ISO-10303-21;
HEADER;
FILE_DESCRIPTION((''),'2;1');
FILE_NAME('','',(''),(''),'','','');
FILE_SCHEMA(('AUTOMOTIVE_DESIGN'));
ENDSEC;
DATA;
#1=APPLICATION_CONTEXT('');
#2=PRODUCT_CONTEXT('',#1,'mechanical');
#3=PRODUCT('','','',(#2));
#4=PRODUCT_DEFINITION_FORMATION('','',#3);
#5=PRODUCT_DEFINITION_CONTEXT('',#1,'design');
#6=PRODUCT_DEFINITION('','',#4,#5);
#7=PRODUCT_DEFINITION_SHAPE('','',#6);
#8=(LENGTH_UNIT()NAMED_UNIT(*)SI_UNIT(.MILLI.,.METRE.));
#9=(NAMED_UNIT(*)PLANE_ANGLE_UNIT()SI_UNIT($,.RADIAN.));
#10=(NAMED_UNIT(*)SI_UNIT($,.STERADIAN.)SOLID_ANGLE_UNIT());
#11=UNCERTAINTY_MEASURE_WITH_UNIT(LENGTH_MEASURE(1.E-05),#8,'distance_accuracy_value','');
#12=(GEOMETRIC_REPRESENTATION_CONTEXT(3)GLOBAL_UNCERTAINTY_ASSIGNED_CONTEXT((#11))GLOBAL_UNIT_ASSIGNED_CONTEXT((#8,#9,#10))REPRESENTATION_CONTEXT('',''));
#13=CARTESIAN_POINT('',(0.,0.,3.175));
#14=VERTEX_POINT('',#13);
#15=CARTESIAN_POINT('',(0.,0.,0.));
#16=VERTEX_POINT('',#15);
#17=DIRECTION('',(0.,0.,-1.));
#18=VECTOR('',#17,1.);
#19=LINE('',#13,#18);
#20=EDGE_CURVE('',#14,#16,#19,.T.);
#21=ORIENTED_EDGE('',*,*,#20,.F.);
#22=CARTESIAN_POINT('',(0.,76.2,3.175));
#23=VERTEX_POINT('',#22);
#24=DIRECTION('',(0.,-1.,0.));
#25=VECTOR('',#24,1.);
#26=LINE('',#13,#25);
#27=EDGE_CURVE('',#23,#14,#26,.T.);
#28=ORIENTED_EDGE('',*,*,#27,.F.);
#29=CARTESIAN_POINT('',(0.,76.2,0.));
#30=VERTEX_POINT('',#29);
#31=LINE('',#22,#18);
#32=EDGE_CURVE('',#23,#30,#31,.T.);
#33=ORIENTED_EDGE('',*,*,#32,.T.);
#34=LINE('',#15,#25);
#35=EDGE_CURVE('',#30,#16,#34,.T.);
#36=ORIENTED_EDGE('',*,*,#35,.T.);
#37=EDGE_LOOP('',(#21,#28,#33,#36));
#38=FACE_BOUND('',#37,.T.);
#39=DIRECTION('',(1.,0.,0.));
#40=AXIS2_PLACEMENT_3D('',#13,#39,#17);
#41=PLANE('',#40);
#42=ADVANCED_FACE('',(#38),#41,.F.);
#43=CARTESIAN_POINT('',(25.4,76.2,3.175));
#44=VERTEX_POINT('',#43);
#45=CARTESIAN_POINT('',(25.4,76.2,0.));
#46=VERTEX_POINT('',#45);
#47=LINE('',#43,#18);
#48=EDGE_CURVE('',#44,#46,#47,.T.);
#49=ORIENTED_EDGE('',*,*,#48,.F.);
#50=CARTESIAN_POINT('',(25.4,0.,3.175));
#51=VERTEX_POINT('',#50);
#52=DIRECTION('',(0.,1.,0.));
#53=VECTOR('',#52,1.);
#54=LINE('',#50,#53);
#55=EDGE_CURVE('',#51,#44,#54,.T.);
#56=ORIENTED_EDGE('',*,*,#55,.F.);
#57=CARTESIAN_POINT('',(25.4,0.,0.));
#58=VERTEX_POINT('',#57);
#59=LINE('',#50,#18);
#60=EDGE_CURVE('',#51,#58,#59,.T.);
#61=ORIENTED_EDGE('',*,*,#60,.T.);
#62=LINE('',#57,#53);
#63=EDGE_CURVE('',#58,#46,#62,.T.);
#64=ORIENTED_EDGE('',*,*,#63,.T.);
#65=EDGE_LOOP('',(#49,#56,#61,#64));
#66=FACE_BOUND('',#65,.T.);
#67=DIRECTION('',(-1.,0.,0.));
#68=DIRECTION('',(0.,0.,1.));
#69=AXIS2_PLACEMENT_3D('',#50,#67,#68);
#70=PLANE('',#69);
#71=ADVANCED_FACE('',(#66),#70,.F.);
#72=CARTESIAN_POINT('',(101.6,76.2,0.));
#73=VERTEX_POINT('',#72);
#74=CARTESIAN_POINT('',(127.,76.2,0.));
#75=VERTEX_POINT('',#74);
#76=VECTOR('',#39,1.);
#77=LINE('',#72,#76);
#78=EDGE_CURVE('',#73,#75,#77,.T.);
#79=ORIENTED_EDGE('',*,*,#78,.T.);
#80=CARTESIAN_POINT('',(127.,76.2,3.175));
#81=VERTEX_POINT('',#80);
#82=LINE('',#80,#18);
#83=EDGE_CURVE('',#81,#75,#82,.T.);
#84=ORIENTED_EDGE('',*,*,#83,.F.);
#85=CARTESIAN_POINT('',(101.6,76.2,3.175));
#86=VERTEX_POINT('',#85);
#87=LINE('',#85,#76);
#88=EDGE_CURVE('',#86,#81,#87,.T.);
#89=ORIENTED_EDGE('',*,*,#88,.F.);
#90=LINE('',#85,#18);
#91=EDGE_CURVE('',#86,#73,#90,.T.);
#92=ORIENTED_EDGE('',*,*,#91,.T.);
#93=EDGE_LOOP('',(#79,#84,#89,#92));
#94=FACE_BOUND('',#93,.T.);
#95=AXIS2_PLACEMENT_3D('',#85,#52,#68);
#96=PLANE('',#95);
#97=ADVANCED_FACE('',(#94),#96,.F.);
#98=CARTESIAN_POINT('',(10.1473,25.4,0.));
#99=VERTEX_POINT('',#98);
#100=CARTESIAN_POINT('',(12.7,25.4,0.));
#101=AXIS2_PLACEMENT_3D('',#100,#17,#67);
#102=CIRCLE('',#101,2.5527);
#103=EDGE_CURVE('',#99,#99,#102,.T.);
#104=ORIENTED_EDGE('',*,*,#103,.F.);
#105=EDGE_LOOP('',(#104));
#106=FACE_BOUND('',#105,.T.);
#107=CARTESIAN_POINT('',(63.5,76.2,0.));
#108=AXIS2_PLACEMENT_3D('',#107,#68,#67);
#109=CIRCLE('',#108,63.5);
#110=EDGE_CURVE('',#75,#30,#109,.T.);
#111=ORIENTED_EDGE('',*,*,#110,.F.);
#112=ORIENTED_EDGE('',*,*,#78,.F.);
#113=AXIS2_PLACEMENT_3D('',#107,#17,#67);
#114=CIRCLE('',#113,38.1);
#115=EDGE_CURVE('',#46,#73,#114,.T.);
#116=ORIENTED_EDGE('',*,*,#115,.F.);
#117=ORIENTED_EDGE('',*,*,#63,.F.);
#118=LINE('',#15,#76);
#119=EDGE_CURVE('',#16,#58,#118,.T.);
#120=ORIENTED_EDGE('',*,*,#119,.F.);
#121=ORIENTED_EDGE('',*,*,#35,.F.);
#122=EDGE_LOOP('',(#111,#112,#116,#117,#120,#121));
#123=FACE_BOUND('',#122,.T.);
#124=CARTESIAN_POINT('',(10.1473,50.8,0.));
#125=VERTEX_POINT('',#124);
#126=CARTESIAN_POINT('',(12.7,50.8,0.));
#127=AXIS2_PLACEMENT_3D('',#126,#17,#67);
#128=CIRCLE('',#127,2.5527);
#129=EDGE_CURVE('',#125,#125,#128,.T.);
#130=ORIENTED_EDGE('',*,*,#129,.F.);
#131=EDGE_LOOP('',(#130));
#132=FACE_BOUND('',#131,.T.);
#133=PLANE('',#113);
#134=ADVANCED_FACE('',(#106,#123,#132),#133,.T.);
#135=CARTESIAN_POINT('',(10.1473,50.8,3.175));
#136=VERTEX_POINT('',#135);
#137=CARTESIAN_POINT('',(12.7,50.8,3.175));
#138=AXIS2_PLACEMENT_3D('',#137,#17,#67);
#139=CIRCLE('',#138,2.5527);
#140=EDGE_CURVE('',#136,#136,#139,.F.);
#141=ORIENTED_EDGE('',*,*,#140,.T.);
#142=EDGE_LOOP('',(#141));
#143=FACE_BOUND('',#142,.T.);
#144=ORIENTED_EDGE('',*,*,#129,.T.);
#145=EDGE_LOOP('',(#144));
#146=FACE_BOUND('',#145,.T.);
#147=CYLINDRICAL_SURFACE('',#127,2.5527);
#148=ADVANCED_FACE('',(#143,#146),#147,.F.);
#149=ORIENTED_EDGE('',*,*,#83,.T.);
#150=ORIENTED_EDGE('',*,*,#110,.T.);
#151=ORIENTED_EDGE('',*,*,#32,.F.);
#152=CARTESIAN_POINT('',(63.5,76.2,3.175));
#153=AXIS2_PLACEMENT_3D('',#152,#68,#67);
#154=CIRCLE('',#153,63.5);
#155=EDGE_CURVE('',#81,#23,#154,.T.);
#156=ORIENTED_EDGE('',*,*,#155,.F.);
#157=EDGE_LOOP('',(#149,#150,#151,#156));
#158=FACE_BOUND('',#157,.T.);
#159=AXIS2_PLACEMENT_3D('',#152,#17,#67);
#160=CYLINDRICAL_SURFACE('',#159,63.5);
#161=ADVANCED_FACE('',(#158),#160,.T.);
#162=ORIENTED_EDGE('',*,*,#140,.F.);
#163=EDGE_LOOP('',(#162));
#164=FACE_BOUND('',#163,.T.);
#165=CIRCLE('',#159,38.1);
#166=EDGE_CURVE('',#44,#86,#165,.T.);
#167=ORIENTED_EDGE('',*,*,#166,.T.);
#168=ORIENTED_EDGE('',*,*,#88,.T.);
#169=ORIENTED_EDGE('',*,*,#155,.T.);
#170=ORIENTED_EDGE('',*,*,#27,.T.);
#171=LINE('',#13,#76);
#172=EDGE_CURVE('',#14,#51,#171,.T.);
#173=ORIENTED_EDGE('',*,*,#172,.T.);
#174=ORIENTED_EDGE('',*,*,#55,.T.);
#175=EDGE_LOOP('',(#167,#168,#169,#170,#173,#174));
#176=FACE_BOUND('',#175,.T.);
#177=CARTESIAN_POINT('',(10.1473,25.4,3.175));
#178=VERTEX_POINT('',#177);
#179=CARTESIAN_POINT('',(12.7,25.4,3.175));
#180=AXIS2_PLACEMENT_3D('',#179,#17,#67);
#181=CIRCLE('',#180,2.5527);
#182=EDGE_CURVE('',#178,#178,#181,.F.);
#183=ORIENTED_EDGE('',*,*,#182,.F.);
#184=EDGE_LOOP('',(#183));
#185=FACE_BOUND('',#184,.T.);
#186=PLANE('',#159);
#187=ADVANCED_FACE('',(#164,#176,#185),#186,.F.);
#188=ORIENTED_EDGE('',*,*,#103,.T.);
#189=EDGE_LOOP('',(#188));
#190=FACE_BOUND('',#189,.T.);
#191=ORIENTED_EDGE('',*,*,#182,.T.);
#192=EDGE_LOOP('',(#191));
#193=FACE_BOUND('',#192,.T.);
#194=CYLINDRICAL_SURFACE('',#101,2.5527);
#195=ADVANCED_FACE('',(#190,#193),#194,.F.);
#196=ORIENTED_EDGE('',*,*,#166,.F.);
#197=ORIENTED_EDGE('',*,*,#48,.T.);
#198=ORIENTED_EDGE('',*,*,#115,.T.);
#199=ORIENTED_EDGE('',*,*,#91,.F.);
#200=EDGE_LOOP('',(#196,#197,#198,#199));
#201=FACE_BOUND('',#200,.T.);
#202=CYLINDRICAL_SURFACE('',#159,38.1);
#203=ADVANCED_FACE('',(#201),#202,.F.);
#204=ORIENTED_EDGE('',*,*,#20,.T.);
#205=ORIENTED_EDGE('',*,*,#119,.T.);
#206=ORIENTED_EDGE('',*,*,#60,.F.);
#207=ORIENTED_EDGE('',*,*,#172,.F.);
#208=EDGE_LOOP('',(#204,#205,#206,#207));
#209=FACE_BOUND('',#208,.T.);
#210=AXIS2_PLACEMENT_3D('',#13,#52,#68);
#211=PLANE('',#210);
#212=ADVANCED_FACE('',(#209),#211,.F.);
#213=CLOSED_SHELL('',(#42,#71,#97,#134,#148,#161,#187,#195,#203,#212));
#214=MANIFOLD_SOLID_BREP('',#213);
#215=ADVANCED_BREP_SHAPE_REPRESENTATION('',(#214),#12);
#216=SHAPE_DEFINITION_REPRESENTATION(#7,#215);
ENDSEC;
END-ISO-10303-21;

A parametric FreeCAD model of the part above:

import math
import FreeCAD as App
import Part
import Sketcher

V = App.Vector
Q = App.Units.Quantity

doc = App.newDocument("Part")
body = doc.addObject("PartDesign::Body", "Body")

# Sketch on XY plane
sketch1 = doc.addObject("Sketcher::SketchObject", "Sketch")
body.addObject(sketch1)
sketch1.AttachmentSupport = (doc.XY_Plane, [""])
sketch1.MapMode = "FlatFace"
sketch1.addGeometry(Part.LineSegment(V(0, 0, 0), V(25, 0, 0)), False)
sketch1.addGeometry(Part.LineSegment(V(25, 0, 0), V(25, 76, 0)), False)
sketch1.addGeometry(Part.ArcOfCircle(Part.Circle(V(64, 76, 0), V(0, 0, 1), 38), math.radians(0), math.radians(180)), False)
sketch1.addGeometry(Part.LineSegment(V(102, 76, 0), V(127, 76, 0)), False)
sketch1.addGeometry(Part.ArcOfCircle(Part.Circle(V(64, 76, 0), V(0, 0, 1), 64), math.radians(0), math.radians(180)), False)
sketch1.addGeometry(Part.LineSegment(V(0, 76, 0), V(0, 0, 0)), False)
sketch1.addConstraint(Sketcher.Constraint("Coincident", 0, 2, 1, 1))
sketch1.addConstraint(Sketcher.Constraint("Tangent", 1, 2, 2, 2))
sketch1.addConstraint(Sketcher.Constraint("Coincident", 2, 1, 3, 1))
sketch1.addConstraint(Sketcher.Constraint("Coincident", 3, 2, 4, 1))
sketch1.addConstraint(Sketcher.Constraint("Tangent", 4, 2, 5, 1))
sketch1.addConstraint(Sketcher.Constraint("Coincident", 5, 2, 0, 1))
sketch1.addConstraint(Sketcher.Constraint("Horizontal", 0))
sketch1.addConstraint(Sketcher.Constraint("Vertical", 1))
sketch1.addConstraint(Sketcher.Constraint("Horizontal", 3))
sketch1.addConstraint(Sketcher.Constraint("Vertical", 5))
sketch1.addConstraint(Sketcher.Constraint("Coincident", 5, 2, -1, 1))
sketch1.addConstraint(Sketcher.Constraint("Coincident", 4, 3, 2, 3))
sketch1.addConstraint(Sketcher.Constraint("Horizontal", 1, 2, 2, 1))
sketch1.addConstraint(Sketcher.Constraint("Radius", 2, Q("1.5 in")))
sketch1.addConstraint(Sketcher.Constraint("Radius", 4, Q("2.5 in")))
sketch1.addConstraint(Sketcher.Constraint("DistanceY", 1, 1, 1, 2, Q("3 in")))
pad1 = doc.addObject("PartDesign::Pad", "Pad")
body.addObject(pad1)
pad1.Profile = sketch1
pad1.Length = Q("0.125 in")

# Sketch on XY plane
sketch2 = doc.addObject("Sketcher::SketchObject", "Sketch001")
body.addObject(sketch2)
sketch2.AttachmentSupport = (doc.XY_Plane, [""])
sketch2.MapMode = "FlatFace"
sketch2.addGeometry(Part.Circle(V(12.7, 25.4, 0), V(0, 0, 1), 2.6), False)
sketch2.addGeometry(Part.Circle(V(12.7, 50.8, 0), V(0, 0, 1), 2.6), False)
sketch2.addConstraint(Sketcher.Constraint("Equal", 0, 1))
sketch2.addConstraint(Sketcher.Constraint("Vertical", 0, 3, 1, 3))
sketch2.addConstraint(Sketcher.Constraint("Diameter", 0, Q("0.201 in")))
sketch2.addConstraint(Sketcher.Constraint("DistanceY", -1, 1, 0, 3, Q("1 in")))
sketch2.addConstraint(Sketcher.Constraint("DistanceY", -1, 1, 1, 3, Q("2 in")))
sketch2.addConstraint(Sketcher.Constraint("DistanceX", -1, 1, 0, 3, Q("0.5 in")))
doc.recompute()
hole = doc.addObject("PartDesign::Hole", "Hole")
body.addObject(hole)
hole.Profile = sketch2
hole.ThreadType = "None"
hole.Diameter = Q("0.201 in")
hole.DepthType = "ThroughAll"
hole.Reversed = True

doc.recompute()
